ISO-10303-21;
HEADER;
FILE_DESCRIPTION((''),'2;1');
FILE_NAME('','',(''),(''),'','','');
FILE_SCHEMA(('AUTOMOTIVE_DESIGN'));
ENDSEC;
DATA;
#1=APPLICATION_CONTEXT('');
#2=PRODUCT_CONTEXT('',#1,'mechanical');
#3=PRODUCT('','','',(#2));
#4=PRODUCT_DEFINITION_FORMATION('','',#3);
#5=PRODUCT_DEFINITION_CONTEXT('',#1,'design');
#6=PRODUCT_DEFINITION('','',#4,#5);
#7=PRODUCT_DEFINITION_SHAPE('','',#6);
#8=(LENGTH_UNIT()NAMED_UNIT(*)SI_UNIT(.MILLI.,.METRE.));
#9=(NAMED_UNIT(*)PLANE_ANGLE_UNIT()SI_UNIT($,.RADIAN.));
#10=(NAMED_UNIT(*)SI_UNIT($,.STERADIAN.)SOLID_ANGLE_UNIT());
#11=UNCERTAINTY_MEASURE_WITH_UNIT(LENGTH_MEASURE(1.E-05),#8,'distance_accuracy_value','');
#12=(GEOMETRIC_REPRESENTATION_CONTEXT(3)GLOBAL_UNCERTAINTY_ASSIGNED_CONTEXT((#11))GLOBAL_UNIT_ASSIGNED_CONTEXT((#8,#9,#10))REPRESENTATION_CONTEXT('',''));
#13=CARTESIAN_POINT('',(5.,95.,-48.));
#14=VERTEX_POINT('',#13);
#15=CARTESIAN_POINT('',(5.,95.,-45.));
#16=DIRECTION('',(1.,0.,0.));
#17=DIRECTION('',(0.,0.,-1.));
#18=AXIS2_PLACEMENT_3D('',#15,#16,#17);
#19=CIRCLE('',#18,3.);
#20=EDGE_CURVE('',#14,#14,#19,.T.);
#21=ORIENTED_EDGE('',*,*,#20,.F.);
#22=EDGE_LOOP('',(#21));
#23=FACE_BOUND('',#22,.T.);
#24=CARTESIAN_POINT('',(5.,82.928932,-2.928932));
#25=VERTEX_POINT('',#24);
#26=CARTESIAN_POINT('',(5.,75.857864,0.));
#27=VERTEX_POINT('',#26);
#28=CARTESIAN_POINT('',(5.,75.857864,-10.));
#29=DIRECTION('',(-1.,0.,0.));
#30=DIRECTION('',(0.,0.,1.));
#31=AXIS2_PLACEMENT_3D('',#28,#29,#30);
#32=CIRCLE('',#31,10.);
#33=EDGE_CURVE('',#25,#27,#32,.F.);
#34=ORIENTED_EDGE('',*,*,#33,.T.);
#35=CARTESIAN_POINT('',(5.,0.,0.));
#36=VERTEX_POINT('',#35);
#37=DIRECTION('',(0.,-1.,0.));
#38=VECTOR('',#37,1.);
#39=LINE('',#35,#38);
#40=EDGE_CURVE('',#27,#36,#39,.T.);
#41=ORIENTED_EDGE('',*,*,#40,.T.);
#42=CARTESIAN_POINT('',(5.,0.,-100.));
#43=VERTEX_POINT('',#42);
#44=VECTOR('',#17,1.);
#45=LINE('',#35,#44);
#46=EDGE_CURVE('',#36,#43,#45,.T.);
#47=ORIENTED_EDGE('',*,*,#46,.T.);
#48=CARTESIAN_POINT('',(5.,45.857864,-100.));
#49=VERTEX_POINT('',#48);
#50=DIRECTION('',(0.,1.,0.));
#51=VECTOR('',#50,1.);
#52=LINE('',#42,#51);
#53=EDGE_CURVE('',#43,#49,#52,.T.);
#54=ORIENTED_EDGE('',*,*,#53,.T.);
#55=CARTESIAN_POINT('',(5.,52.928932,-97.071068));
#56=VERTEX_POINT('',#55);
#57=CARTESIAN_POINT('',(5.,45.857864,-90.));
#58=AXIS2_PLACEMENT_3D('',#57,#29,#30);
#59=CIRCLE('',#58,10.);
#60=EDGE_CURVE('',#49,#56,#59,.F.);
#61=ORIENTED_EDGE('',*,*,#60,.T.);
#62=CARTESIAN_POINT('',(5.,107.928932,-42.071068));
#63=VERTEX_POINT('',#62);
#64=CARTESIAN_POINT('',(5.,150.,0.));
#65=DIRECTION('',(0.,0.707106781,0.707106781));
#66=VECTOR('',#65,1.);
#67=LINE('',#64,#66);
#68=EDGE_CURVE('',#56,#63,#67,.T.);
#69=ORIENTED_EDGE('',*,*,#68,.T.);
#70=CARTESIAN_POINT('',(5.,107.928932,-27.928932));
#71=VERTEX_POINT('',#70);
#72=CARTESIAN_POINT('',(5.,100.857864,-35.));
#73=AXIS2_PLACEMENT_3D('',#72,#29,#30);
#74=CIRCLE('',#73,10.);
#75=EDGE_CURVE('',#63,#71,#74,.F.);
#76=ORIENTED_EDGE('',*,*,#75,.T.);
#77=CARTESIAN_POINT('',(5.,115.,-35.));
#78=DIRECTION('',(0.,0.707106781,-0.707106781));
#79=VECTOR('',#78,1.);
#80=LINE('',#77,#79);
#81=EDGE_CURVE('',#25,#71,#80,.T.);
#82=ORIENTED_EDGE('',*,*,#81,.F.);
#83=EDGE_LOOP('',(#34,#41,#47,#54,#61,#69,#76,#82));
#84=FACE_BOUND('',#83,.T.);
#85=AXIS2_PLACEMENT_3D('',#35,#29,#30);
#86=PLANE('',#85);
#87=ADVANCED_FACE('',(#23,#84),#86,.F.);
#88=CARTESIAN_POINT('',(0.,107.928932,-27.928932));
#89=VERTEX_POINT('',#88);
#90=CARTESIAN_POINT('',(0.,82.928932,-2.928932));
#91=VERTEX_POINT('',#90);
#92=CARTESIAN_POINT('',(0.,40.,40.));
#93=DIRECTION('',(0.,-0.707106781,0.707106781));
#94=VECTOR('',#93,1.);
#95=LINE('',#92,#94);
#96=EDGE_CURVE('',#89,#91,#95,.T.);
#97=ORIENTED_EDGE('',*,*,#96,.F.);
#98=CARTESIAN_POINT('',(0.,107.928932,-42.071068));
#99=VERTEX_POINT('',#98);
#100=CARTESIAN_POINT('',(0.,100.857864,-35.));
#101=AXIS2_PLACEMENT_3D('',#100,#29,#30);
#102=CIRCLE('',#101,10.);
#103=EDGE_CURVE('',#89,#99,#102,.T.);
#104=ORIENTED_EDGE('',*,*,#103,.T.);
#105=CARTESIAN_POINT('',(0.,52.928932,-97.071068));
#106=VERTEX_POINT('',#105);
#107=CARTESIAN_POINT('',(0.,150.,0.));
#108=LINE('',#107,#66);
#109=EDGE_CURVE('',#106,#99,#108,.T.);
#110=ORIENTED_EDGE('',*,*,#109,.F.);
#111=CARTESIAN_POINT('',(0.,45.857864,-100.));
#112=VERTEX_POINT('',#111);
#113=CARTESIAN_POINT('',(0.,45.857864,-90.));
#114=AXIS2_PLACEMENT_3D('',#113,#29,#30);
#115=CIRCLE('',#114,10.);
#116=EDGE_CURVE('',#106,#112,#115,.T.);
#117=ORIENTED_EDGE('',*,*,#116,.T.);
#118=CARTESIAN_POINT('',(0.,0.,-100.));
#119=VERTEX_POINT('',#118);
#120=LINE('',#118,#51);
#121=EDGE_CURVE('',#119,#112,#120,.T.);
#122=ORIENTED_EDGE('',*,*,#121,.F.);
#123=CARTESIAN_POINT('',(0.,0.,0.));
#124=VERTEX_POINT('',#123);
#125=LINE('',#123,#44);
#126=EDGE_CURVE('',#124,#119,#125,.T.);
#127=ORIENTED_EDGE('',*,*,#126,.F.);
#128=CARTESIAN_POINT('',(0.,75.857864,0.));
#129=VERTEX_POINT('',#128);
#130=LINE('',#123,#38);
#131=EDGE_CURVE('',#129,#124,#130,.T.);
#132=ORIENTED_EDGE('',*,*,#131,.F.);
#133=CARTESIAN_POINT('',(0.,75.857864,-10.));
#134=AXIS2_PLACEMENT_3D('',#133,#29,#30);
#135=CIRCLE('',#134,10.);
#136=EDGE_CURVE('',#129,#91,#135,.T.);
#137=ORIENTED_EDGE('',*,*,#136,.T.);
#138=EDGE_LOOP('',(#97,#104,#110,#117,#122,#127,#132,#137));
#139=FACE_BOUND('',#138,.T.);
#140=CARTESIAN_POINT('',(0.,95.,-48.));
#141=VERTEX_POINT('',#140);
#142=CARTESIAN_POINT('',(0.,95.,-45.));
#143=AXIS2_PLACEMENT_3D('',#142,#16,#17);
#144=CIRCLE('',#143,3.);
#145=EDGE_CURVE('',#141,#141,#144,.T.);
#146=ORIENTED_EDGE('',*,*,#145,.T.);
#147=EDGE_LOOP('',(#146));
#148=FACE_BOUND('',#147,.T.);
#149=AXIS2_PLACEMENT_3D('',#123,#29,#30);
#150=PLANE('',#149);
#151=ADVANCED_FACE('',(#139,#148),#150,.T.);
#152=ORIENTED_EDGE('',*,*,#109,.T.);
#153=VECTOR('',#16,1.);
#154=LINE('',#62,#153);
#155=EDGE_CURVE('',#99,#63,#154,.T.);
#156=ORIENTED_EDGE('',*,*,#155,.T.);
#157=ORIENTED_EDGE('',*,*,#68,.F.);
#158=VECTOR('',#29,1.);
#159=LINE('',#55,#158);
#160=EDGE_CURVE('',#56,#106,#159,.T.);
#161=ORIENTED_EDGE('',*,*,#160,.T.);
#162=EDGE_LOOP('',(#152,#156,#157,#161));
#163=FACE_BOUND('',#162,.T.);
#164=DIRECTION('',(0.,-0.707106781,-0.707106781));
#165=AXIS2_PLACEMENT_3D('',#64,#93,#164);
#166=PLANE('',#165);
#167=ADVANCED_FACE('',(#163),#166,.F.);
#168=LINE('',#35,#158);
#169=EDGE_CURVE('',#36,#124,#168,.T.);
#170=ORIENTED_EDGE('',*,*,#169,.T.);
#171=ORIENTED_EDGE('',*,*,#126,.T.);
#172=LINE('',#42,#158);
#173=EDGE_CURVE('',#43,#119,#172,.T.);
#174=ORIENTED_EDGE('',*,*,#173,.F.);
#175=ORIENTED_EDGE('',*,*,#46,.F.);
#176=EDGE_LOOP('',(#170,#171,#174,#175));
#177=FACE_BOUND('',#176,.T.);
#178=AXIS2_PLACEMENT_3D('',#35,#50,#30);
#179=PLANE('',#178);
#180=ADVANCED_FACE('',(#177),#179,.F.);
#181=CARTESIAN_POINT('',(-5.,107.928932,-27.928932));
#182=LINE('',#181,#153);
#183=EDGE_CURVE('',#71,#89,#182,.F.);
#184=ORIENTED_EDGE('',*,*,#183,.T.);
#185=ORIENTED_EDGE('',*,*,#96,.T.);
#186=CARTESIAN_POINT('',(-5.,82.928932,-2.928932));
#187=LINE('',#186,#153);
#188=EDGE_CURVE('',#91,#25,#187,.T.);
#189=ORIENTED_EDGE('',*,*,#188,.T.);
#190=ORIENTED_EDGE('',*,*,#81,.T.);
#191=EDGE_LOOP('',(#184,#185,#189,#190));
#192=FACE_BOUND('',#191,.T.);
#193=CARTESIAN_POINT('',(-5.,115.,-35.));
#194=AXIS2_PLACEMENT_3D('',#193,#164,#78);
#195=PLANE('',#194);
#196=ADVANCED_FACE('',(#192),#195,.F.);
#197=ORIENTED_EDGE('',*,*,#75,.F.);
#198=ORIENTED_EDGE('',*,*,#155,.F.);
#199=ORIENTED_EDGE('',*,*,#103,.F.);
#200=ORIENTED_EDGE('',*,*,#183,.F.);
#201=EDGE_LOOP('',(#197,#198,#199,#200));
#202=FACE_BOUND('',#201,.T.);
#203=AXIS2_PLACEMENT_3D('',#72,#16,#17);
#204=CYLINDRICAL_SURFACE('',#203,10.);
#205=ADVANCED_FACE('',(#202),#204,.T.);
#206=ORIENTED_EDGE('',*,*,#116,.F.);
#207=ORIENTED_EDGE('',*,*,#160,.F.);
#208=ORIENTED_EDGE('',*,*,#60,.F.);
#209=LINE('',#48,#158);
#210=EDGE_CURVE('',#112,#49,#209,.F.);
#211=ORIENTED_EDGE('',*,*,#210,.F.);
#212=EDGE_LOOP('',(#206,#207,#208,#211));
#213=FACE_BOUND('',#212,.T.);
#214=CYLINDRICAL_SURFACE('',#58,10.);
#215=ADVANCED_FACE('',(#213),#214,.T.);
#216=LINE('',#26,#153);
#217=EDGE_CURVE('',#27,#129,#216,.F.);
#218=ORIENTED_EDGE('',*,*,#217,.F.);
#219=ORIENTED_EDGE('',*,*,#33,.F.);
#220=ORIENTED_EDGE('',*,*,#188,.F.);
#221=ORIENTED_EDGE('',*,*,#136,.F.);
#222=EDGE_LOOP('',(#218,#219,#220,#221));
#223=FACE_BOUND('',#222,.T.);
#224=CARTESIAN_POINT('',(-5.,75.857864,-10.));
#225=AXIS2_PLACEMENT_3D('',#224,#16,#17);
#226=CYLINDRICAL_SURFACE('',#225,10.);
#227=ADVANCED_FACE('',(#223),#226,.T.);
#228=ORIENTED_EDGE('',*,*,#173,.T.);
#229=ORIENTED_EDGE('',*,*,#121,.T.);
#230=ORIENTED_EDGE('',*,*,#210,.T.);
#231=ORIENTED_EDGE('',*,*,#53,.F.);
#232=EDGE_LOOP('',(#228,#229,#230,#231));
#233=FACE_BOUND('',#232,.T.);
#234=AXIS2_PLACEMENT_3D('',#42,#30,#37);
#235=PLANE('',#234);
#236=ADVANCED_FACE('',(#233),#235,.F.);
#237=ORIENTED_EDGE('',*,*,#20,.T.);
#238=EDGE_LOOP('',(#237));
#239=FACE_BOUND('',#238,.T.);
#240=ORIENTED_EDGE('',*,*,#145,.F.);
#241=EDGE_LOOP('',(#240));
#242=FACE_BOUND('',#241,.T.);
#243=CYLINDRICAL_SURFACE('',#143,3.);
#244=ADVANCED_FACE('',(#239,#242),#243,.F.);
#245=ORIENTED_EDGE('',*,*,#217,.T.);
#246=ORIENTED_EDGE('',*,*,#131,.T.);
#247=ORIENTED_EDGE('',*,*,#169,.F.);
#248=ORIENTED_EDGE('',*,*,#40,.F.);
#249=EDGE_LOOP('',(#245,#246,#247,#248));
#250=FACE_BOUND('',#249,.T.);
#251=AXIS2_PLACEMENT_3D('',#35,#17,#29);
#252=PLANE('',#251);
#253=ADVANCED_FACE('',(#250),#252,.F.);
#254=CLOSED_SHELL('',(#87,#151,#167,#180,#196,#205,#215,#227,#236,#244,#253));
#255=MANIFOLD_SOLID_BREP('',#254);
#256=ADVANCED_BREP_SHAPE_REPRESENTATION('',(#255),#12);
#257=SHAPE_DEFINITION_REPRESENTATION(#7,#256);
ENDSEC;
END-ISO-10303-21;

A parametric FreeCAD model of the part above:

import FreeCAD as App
import Part
import Sketcher

V = App.Vector


def edges_at(feature, points):
    """Names of the edges that pass closest to the given points."""
    edges = feature.Shape.Edges
    near = lambda p: min(range(len(edges)), key=lambda i: edges[i].distToShape(Part.Vertex(*p))[0])
    return sorted({f"Edge{near(p) + 1}" for p in points})


def add_polygon(sketch, points):
    """Adds a closed chain of lines whose ends are joined by coincident constraints."""
    first, n = sketch.GeometryCount, len(points)
    for a, b in zip(points, points[1:] + points[:1]):
        sketch.addGeometry(Part.LineSegment(App.Vector(*a, 0), App.Vector(*b, 0)), False)
    for i in range(n):
        sketch.addConstraint(Sketcher.Constraint("Coincident", first + i, 2, first + (i + 1) % n, 1))

doc = App.newDocument("Part")
params = doc.addObject("Spreadsheet::Sheet", "Params")
for row, (alias, value) in enumerate([
    ("sketch1_width", "150 mm"),
    ("sketch1_width2", "50 mm"),
    ("sketch1_height", "100 mm"),
    ("pad1_length", "5 mm"),
    ("sketch2_diameter", "6 mm"),
    ("pocket1_length", "5 mm"),
    ("sketch3_width", "70 mm"),
    ("pocket2_length", "10 mm"),
    ("fillet_radius", "10 mm"),
], start=1):
    params.set(f"A{row}", alias)
    params.set(f"B{row}", "=" + value)
    params.setAlias(f"B{row}", alias)

body = doc.addObject("PartDesign::Body", "Body")

# Sketch on YZ plane
sketch1 = body.newObject("Sketcher::SketchObject", "Sketch")
sketch1.AttachmentSupport = (doc.getObject("YZ_Plane"), [""])
sketch1.MapMode = "FlatFace"
add_polygon(sketch1, [(50, -100), (150, 0), (0, 0), (0, -100)])  # lines 0-3
sketch1.addConstraint(Sketcher.Constraint("Horizontal", 1))
sketch1.addConstraint(Sketcher.Constraint("Vertical", 2))
sketch1.addConstraint(Sketcher.Constraint("Horizontal", 3))
sketch1.addConstraint(Sketcher.Constraint("Coincident", 1, 2, -1, 1))
sketch1.addConstraint(Sketcher.Constraint("DistanceX", 1, 2, 1, 1, 150.0))
sketch1.addConstraint(Sketcher.Constraint("DistanceX", 3, 1, 3, 2, 50.0))
sketch1.addConstraint(Sketcher.Constraint("DistanceY", 2, 2, 2, 1, 100.0))
sketch1.setExpression("Constraints[8]", "Params.sketch1_width")
sketch1.setExpression("Constraints[9]", "Params.sketch1_width2")
sketch1.setExpression("Constraints[10]", "Params.sketch1_height")
pad1 = body.newObject("PartDesign::Pad", "Pad")
pad1.Profile = sketch1
pad1.setExpression("Length", "Params.pad1_length")

# Sketch on YZ plane
sketch2 = body.newObject("Sketcher::SketchObject", "Sketch001")
sketch2.AttachmentSupport = (doc.getObject("YZ_Plane"), [""])
sketch2.MapMode = "FlatFace"
sketch2.AttachmentOffset = App.Placement(V(0, 0, 5), App.Rotation())
sketch2.addGeometry(Part.Circle(V(95, -45, 0), V(0, 0, 1), 3), False)
sketch2.addConstraint(Sketcher.Constraint("Diameter", 0, 6.0))
sketch2.addConstraint(Sketcher.Constraint("DistanceX", -1, 1, 0, 3, 95.0))
sketch2.addConstraint(Sketcher.Constraint("DistanceY", 0, 3, -1, 1, 45.0))
sketch2.setExpression("Constraints[0]", "Params.sketch2_diameter")
pocket1 = body.newObject("PartDesign::Pocket", "Pocket")
pocket1.Profile = sketch2
pocket1.setExpression("Length", "Params.pocket1_length")

# Sketch on YZ plane
sketch3 = body.newObject("Sketcher::SketchObject", "Sketch002")
sketch3.AttachmentSupport = (doc.getObject("YZ_Plane"), [""])
sketch3.MapMode = "FlatFace"
sketch3.AttachmentOffset = App.Placement(V(0, 0, 5), App.Rotation())
add_polygon(sketch3, [(80, 0), (115, -35), (150, 0)])  # lines 0-2
sketch3.addConstraint(Sketcher.Constraint("Horizontal", 2))
sketch3.addConstraint(Sketcher.Constraint("PointOnObject", 1, 2, -1))
sketch3.addConstraint(Sketcher.Constraint("Perpendicular", 0, 1))
sketch3.addConstraint(Sketcher.Constraint("Equal", 0, 1))
sketch3.addConstraint(Sketcher.Constraint("DistanceX", 2, 2, 2, 1, 70.0))
sketch3.addConstraint(Sketcher.Constraint("DistanceX", -1, 1, 0, 2, 115.0))
sketch3.setExpression("Constraints[7]", "Params.sketch3_width")
pocket2 = body.newObject("PartDesign::Pocket", "Pocket001")
pocket2.Profile = sketch3
pocket2.setExpression("Length", "Params.pocket2_length")
doc.recompute()

fillet = body.newObject("PartDesign::Fillet", "Fillet")
fillet.Base = (pocket2, edges_at(pocket2, [(2.5, 115, -35), (2.5, 80, 0), (2.5, 50, -100)]))
fillet.setExpression("Radius", "Params.fillet_radius")

doc.recompute()
